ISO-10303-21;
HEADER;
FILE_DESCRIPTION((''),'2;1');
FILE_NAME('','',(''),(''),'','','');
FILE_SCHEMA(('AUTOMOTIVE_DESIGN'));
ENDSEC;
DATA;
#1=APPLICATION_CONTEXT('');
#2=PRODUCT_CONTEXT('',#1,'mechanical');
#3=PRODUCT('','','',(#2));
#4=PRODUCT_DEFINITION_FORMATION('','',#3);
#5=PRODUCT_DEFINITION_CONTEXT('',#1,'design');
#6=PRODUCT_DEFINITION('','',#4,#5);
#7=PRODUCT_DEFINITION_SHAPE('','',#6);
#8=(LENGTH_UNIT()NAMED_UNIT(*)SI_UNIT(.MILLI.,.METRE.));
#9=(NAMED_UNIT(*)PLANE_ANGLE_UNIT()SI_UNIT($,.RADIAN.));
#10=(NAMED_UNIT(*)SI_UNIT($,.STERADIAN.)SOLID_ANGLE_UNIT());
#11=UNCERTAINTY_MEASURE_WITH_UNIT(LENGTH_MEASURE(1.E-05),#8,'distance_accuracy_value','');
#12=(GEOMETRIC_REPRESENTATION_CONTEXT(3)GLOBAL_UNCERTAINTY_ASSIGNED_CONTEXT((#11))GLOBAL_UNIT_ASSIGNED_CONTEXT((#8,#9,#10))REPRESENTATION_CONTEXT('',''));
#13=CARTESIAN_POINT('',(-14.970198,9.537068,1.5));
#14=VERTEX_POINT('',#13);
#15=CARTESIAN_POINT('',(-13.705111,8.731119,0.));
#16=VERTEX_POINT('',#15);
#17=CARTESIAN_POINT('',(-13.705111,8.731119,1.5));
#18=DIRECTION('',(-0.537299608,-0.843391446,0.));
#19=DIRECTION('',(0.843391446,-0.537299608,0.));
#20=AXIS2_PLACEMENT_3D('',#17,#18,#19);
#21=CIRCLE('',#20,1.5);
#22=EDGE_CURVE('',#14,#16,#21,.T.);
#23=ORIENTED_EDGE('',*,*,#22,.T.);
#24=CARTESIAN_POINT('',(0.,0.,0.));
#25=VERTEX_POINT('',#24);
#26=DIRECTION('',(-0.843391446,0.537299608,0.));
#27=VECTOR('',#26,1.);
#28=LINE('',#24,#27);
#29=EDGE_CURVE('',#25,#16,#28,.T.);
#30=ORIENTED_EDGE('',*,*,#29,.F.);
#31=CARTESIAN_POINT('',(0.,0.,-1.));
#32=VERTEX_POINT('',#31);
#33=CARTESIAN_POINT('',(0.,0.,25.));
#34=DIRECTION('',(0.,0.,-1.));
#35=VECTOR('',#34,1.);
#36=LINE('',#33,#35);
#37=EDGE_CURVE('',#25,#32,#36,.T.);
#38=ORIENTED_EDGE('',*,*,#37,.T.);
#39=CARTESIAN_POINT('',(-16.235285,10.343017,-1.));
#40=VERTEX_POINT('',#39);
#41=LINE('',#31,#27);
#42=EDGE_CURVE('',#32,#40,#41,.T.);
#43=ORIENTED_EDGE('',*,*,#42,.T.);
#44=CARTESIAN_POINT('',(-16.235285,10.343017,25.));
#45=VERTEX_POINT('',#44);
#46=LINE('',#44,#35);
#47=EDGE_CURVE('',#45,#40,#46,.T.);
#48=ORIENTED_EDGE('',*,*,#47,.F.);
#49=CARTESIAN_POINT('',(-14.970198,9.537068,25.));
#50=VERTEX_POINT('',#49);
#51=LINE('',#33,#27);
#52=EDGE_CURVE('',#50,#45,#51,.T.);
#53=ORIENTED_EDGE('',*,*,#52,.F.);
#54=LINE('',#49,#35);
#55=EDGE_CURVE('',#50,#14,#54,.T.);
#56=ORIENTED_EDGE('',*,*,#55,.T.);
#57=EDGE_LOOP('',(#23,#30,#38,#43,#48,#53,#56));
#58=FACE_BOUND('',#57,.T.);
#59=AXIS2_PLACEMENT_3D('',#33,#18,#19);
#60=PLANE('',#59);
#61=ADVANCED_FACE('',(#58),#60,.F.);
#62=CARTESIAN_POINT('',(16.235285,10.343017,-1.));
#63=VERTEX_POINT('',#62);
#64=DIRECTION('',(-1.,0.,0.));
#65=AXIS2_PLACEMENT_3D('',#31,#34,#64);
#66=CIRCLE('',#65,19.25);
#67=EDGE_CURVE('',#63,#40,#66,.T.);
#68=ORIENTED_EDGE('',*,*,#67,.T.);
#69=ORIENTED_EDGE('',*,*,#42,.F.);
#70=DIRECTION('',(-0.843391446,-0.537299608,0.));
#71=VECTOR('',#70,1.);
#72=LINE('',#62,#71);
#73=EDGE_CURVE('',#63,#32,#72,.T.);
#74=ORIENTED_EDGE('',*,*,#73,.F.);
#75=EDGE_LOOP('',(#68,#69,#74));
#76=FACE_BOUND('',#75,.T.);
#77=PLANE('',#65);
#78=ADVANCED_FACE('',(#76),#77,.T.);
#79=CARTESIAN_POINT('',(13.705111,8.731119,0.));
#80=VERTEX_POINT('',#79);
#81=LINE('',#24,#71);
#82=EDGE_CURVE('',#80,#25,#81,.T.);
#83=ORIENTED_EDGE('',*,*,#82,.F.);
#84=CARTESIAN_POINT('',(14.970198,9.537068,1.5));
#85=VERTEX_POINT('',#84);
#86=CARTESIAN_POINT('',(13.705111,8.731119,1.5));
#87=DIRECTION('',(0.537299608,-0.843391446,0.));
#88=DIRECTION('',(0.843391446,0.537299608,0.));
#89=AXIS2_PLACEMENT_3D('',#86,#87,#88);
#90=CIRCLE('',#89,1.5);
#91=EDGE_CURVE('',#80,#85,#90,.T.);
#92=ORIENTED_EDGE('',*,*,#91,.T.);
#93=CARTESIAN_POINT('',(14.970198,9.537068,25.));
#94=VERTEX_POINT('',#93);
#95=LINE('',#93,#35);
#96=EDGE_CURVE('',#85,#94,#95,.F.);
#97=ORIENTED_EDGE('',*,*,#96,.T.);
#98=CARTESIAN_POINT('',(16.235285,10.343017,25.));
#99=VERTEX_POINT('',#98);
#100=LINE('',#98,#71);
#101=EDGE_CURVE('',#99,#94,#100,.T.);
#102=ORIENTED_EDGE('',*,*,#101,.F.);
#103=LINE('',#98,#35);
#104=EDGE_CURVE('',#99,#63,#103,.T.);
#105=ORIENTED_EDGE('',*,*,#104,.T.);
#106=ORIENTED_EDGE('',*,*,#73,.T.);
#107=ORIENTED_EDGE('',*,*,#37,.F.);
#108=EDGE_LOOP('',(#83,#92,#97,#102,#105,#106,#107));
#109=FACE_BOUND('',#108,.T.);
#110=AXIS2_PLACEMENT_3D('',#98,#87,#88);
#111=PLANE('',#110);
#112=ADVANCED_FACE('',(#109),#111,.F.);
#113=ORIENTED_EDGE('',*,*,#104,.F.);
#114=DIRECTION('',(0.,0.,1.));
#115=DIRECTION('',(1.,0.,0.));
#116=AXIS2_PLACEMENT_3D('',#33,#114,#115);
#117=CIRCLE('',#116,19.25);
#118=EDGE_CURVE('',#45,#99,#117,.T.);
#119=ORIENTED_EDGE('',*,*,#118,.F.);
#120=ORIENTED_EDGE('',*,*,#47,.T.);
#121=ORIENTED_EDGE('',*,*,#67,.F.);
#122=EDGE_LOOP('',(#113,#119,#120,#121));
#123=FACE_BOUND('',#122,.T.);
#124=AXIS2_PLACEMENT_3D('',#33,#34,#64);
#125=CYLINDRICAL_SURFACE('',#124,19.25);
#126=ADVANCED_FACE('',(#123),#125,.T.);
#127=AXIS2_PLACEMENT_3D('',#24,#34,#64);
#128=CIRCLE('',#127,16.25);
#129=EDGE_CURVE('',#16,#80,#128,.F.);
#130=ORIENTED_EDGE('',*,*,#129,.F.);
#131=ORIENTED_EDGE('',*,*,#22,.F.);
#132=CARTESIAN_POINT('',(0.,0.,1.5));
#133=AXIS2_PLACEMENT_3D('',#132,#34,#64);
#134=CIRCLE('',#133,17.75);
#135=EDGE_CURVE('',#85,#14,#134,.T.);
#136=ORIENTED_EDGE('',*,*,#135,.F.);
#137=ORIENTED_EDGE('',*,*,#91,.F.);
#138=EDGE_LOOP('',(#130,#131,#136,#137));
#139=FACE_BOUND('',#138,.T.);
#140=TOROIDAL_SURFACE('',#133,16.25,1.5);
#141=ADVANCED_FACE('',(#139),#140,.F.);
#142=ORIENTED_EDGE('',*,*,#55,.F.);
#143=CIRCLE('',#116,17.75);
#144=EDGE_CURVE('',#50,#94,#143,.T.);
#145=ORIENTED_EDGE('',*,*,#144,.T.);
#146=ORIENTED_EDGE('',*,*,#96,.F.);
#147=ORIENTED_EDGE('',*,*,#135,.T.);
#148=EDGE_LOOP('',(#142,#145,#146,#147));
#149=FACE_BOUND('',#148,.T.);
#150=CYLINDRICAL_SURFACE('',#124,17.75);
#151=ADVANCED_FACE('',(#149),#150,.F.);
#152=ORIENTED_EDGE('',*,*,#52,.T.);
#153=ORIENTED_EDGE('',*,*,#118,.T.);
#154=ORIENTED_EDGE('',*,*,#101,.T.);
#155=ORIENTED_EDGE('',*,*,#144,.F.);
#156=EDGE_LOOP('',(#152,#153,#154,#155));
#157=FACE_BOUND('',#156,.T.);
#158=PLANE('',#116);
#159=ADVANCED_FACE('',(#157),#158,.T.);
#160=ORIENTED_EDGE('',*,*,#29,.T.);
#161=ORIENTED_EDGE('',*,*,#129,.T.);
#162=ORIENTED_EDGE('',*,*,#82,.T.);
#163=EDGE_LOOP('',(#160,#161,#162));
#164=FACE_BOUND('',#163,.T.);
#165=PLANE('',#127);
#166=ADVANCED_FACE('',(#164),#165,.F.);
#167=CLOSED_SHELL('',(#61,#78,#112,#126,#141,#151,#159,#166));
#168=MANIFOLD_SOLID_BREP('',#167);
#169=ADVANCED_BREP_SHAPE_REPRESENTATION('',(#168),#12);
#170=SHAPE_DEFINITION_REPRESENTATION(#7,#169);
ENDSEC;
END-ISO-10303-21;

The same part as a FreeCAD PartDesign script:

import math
import FreeCAD as App
import Part
import Sketcher
from FreeCAD import Vector
Q = App.Units.Quantity


def edges_at(feature, points):
    """Names of the edges that pass closest to the given points."""
    edges = feature.Shape.Edges
    near = lambda p: min(range(len(edges)), key=lambda i: edges[i].distToShape(Part.Vertex(*p))[0])
    return sorted({f"Edge{near(p) + 1}" for p in points})

doc = App.newDocument("Part")
body = doc.addObject("PartDesign::Body", "Body")

sketch1 = body.newObject("Sketcher::SketchObject", "Sketch")
sketch1.AttachmentSupport = (doc.getObject("XY_Plane"), [""])
sketch1.MapMode = "FlatFace"
sketch1.addGeometry(Part.Circle(Vector(0, 0, 0), Vector(0, 0, 1), 19), False)
sketch1.addGeometry(Part.Circle(Vector(0, 0, 0), Vector(0, 0, 1), 18), False)
sketch1.addConstraint(Sketcher.Constraint("Coincident", 0, 3, -1, 1))
sketch1.addConstraint(Sketcher.Constraint("Coincident", 1, 3, -1, 1))
sketch1.addConstraint(Sketcher.Constraint("Diameter", 0, 38.5))
sketch1.addConstraint(Sketcher.Constraint("Diameter", 1, 35.5))
pad1 = body.newObject("PartDesign::Pad", "Pad")
pad1.Profile = sketch1
pad1.Length = 25

sketch2 = body.newObject("Sketcher::SketchObject", "Sketch001")
sketch2.AttachmentSupport = (doc.getObject("XY_Plane"), [""])
sketch2.MapMode = "FlatFace"
sketch2.AttachmentOffset = App.Placement(Vector(0, 0, -1), App.Rotation())
sketch2.addGeometry(Part.Circle(Vector(0, 0, 0), Vector(0, 0, 1), 19), False)
sketch2.addConstraint(Sketcher.Constraint("Coincident", 0, 3, -1, 1))
sketch2.addConstraint(Sketcher.Constraint("Diameter", 0, 38.5))
pad2 = body.newObject("PartDesign::Pad", "Pad001")
pad2.Profile = sketch2
pad2.Length = 1

sketch3 = body.newObject("Sketcher::SketchObject", "Sketch002")
sketch3.AttachmentSupport = (doc.getObject("XY_Plane"), [""])
sketch3.MapMode = "FlatFace"
sketch3.AttachmentOffset = App.Placement(Vector(0, 0, -1), App.Rotation())
sketch3.addGeometry(Part.LineSegment(Vector(16, 10, 0), Vector(0, 0, 0)), False)
sketch3.addGeometry(Part.LineSegment(Vector(0, 0, 0), Vector(-16, 10, 0)), False)
sketch3.addGeometry(Part.ArcOfCircle(Part.Circle(Vector(0, 0, 0), Vector(0, 0, 1), 19), math.radians(33), math.radians(147)), False)
sketch3.addConstraint(Sketcher.Constraint("Coincident", 0, 2, 1, 1))
sketch3.addConstraint(Sketcher.Constraint("Coincident", 1, 2, 2, 2))
sketch3.addConstraint(Sketcher.Constraint("Coincident", 2, 1, 0, 1))
sketch3.addConstraint(Sketcher.Constraint("Coincident", 2, 3, -1, 1))
sketch3.addConstraint(Sketcher.Constraint("Coincident", 0, 2, -1, 1))
sketch3.addConstraint(Sketcher.Constraint("Horizontal", 1, 2, 2, 1))
sketch3.addConstraint(Sketcher.Constraint("Radius", 2, 19.25))
sketch3.addConstraint(Sketcher.Constraint("Angle", 0, Q("-147.5 deg")))
pocket1 = body.newObject("PartDesign::Pocket", "Pocket")
pocket1.Profile = sketch3
pocket1.Type = "ThroughAll"
pocket1.Reversed = True
doc.recompute()

fillet = body.newObject("PartDesign::Fillet", "Fillet")
fillet.Base = (pocket1, edges_at(pocket1, [(-4.967, -17.041, 0)]))
fillet.Radius = 1.5

doc.recompute()
